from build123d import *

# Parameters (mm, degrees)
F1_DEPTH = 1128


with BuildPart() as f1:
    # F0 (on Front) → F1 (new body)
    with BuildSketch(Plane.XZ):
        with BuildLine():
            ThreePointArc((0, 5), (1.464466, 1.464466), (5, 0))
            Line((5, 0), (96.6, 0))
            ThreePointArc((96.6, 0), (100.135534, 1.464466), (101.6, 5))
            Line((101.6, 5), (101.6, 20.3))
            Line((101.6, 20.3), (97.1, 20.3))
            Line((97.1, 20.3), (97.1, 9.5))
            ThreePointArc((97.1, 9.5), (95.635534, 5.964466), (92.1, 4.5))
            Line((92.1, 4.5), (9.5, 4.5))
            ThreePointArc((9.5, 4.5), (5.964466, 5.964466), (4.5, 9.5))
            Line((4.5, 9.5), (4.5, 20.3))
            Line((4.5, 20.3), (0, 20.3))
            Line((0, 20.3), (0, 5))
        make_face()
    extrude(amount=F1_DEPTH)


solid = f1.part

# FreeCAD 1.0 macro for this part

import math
import FreeCAD as App
import Part
import Sketcher
from FreeCAD import Vector
Q = App.Units.Quantity

doc = App.newDocument("Part")
body = doc.addObject("PartDesign::Body", "Body")

# Sketch on XZ plane
sketch1 = doc.addObject("Sketcher::SketchObject", "Sketch")
body.addObject(sketch1)
sketch1.AttachmentSupport = (doc.XZ_Plane, [""])
sketch1.MapMode = "FlatFace"
sketch1.addGeometry(Part.ArcOfCircle(Part.Circle(Vector(5, 5, 0), Vector(0, 0, 1), 5), math.radians(179.999996), math.radians(270.000004)), False)
sketch1.addGeometry(Part.LineSegment(Vector(5, 0, 0), Vector(96.6, 0, 0)), False)
sketch1.addGeometry(Part.ArcOfCircle(Part.Circle(Vector(96.6, 5, 0), Vector(0, 0, 1), 5), math.radians(-90.000004), math.radians(0.000004)), False)
sketch1.addGeometry(Part.LineSegment(Vector(101.6, 5, 0), Vector(101.6, 20.3, 0)), False)
sketch1.addGeometry(Part.LineSegment(Vector(101.6, 20.3, 0), Vector(97.1, 20.3, 0)), False)
sketch1.addGeometry(Part.LineSegment(Vector(97.1, 20.3, 0), Vector(97.1, 9.5, 0)), False)
sketch1.addGeometry(Part.ArcOfCircle(Part.Circle(Vector(92.1, 9.5, 0), Vector(0, 0, 1), 5), math.radians(-90.000004), math.radians(0.000004)), False)
sketch1.addGeometry(Part.LineSegment(Vector(92.1, 4.5, 0), Vector(9.5, 4.5, 0)), False)
sketch1.addGeometry(Part.ArcOfCircle(Part.Circle(Vector(9.5, 9.5, 0), Vector(0, 0, 1), 5), math.radians(179.999996), math.radians(270.000004)), False)
sketch1.addGeometry(Part.LineSegment(Vector(4.5, 9.5, 0), Vector(4.5, 20.3, 0)), False)
sketch1.addGeometry(Part.LineSegment(Vector(4.5, 20.3, 0), Vector(0, 20.3, 0)), False)
sketch1.addGeometry(Part.LineSegment(Vector(0, 20.3, 0), Vector(0, 5, 0)), False)
sketch1.addConstraint(Sketcher.Constraint("Tangent", 0, 2, 1, 1))
sketch1.addConstraint(Sketcher.Constraint("Tangent", 1, 2, 2, 1))
sketch1.addConstraint(Sketcher.Constraint("Tangent", 2, 2, 3, 1))
sketch1.addConstraint(Sketcher.Constraint("Coincident", 3, 2, 4, 1))
sketch1.addConstraint(Sketcher.Constraint("Coincident", 4, 2, 5, 1))
sketch1.addConstraint(Sketcher.Constraint("Tangent", 5, 2, 6, 2))
sketch1.addConstraint(Sketcher.Constraint("Tangent", 6, 1, 7, 1))
sketch1.addConstraint(Sketcher.Constraint("Tangent", 7, 2, 8, 2))
sketch1.addConstraint(Sketcher.Constraint("Tangent", 8, 1, 9, 1))
sketch1.addConstraint(Sketcher.Constraint("Coincident", 9, 2, 10, 1))
sketch1.addConstraint(Sketcher.Constraint("Coincident", 10, 2, 11, 1))
sketch1.addConstraint(Sketcher.Constraint("Tangent", 11, 2, 0, 1))
sketch1.addConstraint(Sketcher.Constraint("Horizontal", 1))
sketch1.addConstraint(Sketcher.Constraint("Vertical", 3))
sketch1.addConstraint(Sketcher.Constraint("Horizontal", 4))
sketch1.addConstraint(Sketcher.Constraint("Vertical", 5))
sketch1.addConstraint(Sketcher.Constraint("Horizontal", 7))
sketch1.addConstraint(Sketcher.Constraint("Vertical", 9))
sketch1.addConstraint(Sketcher.Constraint("Horizontal", 10))
sketch1.addConstraint(Sketcher.Constraint("Vertical", 11))
sketch1.addConstraint(Sketcher.Constraint("Equal", 0, 2))
sketch1.addConstraint(Sketcher.Constraint("Equal", 2, 6))
sketch1.addConstraint(Sketcher.Constraint("Equal", 6, 8))
sketch1.addConstraint(Sketcher.Constraint("PointOnObject", 0, 2, -1))
sketch1.addConstraint(Sketcher.Constraint("PointOnObject", 10, 2, -2))
sketch1.addConstraint(Sketcher.Constraint("Horizontal", 4, 2, 9, 2))
sketch1.addConstraint(Sketcher.Constraint("Equal", 4, 10))
sketch1.addConstraint(Sketcher.Constraint("Radius", 0, Q("5 mm")))
sketch1.addConstraint(Sketcher.Constraint("DistanceX", 1, 1, 1, 2, Q("91.6 mm")))
sketch1.addConstraint(Sketcher.Constraint("DistanceX", 4, 2, 4, 1, Q("4.5 mm")))
sketch1.addConstraint(Sketcher.Constraint("DistanceY", 3, 1, 3, 2, Q("15.3 mm")))
sketch1.addConstraint(Sketcher.Constraint("DistanceY", 5, 2, 5, 1, Q("10.8 mm")))
pad1 = doc.addObject("PartDesign::Pad", "Pad")
body.addObject(pad1)
pad1.Profile = sketch1
pad1.Length = 1128

doc.recompute()
